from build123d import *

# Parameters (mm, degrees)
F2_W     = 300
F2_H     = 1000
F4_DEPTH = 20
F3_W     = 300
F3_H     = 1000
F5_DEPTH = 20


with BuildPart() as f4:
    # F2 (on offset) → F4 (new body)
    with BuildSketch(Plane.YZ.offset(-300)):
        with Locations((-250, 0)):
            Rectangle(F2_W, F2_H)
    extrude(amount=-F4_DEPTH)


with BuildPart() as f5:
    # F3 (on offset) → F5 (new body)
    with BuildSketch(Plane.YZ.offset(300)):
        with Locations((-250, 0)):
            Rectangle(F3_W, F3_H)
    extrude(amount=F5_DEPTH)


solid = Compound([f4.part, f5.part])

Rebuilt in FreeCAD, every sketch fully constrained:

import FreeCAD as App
import Part
import Sketcher
Q = App.Units.Quantity


def add_polygon(sketch, points):
    """Adds a closed chain of lines whose ends are joined by coincident constraints."""
    first, n = sketch.GeometryCount, len(points)
    for a, b in zip(points, points[1:] + points[:1]):
        sketch.addGeometry(Part.LineSegment(App.Vector(*a, 0), App.Vector(*b, 0)), False)
    for i in range(n):
        sketch.addConstraint(Sketcher.Constraint("Coincident", first + i, 2, first + (i + 1) % n, 1))

doc = App.newDocument("Part")
params = doc.addObject("Spreadsheet::Sheet", "Params")
for row, (alias, value) in enumerate([
    ("sketch1_width", "300 mm"),
    ("sketch1_height", "1000 mm"),
    ("pad1_length", "20 mm"),
    ("sketch2_width", "300 mm"),
    ("sketch2_height", "1000 mm"),
    ("pad2_length", "20 mm"),
], start=1):
    params.set(f"A{row}", alias)
    params.set(f"B{row}", "=" + value)
    params.setAlias(f"B{row}", alias)

body = doc.addObject("PartDesign::Body", "Body")

# Sketch on YZ plane
sketch1 = doc.addObject("Sketcher::SketchObject", "Sketch")
body.addObject(sketch1)
sketch1.AttachmentSupport = (doc.YZ_Plane, [""])
sketch1.MapMode = "FlatFace"
sketch1.AttachmentOffset = App.Placement(App.Vector(0, 0, -300), App.Rotation())
add_polygon(sketch1, [(-400, 500), (-400, -500), (-100, -500), (-100, 500)])  # lines 0-3
sketch1.addConstraint(Sketcher.Constraint("Vertical", 0))
sketch1.addConstraint(Sketcher.Constraint("Horizontal", 1))
sketch1.addConstraint(Sketcher.Constraint("Vertical", 2))
sketch1.addConstraint(Sketcher.Constraint("Horizontal", 3))
sketch1.addConstraint(Sketcher.Constraint("DistanceX", 1, 1, 1, 2, Q("300 mm")))
sketch1.addConstraint(Sketcher.Constraint("DistanceY", 0, 2, 0, 1, Q("1000 mm")))
sketch1.addConstraint(Sketcher.Constraint("DistanceX", 0, 2, -1, 1, Q("400 mm")))
sketch1.addConstraint(Sketcher.Constraint("DistanceY", 0, 2, -1, 1, Q("500 mm")))
sketch1.setExpression("Constraints[8]", "Params.sketch1_width")
sketch1.setExpression("Constraints[9]", "Params.sketch1_height")
pad1 = doc.addObject("PartDesign::Pad", "Pad")
body.addObject(pad1)
pad1.Profile = sketch1
pad1.setExpression("Length", "Params.pad1_length")
pad1.Reversed = True
body2 = doc.addObject("PartDesign::Body", "Body001")

# Sketch on YZ plane
sketch2 = doc.addObject("Sketcher::SketchObject", "Sketch001")
body2.addObject(sketch2)
sketch2.AttachmentSupport = (doc.getObject("YZ_Plane001"), [""])
sketch2.MapMode = "FlatFace"
sketch2.AttachmentOffset = App.Placement(App.Vector(0, 0, 300), App.Rotation())
add_polygon(sketch2, [(-400, 500), (-400, -500), (-100, -500), (-100, 500)])  # lines 0-3
sketch2.addConstraint(Sketcher.Constraint("Vertical", 0))
sketch2.addConstraint(Sketcher.Constraint("Horizontal", 1))
sketch2.addConstraint(Sketcher.Constraint("Vertical", 2))
sketch2.addConstraint(Sketcher.Constraint("Horizontal", 3))
sketch2.addConstraint(Sketcher.Constraint("DistanceX", 1, 1, 1, 2, Q("300 mm")))
sketch2.addConstraint(Sketcher.Constraint("DistanceY", 0, 2, 0, 1, Q("1000 mm")))
sketch2.addConstraint(Sketcher.Constraint("DistanceX", 0, 2, -1, 1, Q("400 mm")))
sketch2.addConstraint(Sketcher.Constraint("DistanceY", 0, 2, -1, 1, Q("500 mm")))
sketch2.setExpression("Constraints[8]", "Params.sketch2_width")
sketch2.setExpression("Constraints[9]", "Params.sketch2_height")
pad2 = doc.addObject("PartDesign::Pad", "Pad001")
body2.addObject(pad2)
pad2.Profile = sketch2
pad2.setExpression("Length", "Params.pad2_length")

doc.recompute()
